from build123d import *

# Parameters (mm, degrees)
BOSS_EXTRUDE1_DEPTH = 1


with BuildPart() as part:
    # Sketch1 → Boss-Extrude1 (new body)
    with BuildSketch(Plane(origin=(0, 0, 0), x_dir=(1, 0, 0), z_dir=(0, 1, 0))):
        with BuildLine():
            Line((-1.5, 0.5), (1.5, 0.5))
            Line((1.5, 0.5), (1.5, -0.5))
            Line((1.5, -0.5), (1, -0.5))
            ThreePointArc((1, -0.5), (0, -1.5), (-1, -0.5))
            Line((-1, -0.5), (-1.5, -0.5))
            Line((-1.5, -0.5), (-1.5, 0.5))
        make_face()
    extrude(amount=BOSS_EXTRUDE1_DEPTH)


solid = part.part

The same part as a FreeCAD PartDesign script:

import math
import FreeCAD as App
import Part
import Sketcher

doc = App.newDocument("Part")
params = doc.addObject("Spreadsheet::Sheet", "Params")
for row, (alias, value) in enumerate([
    ("sketch1_radius", "1 mm"),
    ("sketch1_width", "3 mm"),
    ("sketch1_height", "1 mm"),
    ("pad1_length", "1 mm"),
], start=1):
    params.set(f"A{row}", alias)
    params.set(f"B{row}", "=" + value)
    params.setAlias(f"B{row}", alias)

body = doc.addObject("PartDesign::Body", "Body")

# Sketch on XZ plane
sketch1 = doc.addObject("Sketcher::SketchObject", "Sketch")
body.addObject(sketch1)
sketch1.AttachmentSupport = (doc.XZ_Plane, [""])
sketch1.MapMode = "FlatFace"
sketch1.addGeometry([
    Part.LineSegment(App.Vector(1.5, -0.5, 0), App.Vector(-1.5, -0.5, 0)),  # 0
    Part.LineSegment(App.Vector(-1.5, -0.5, 0), App.Vector(-1.5, 0.5, 0)),  # 1
    Part.LineSegment(App.Vector(-1.5, 0.5, 0), App.Vector(-1, 0.5, 0)),  # 2
    Part.ArcOfCircle(Part.Circle(App.Vector(0, 0.5, 0), App.Vector(0, 0, 1), 1), math.radians(0), math.radians(180)),  # 3
    Part.LineSegment(App.Vector(1, 0.5, 0), App.Vector(1.5, 0.5, 0)),  # 4
    Part.LineSegment(App.Vector(1.5, 0.5, 0), App.Vector(1.5, -0.5, 0)),  # 5
], False)
sketch1.addConstraint([
    Sketcher.Constraint("Coincident", 0, 2, 1, 1),
    Sketcher.Constraint("Coincident", 1, 2, 2, 1),
    Sketcher.Constraint("Coincident", 2, 2, 3, 2),
    Sketcher.Constraint("Coincident", 3, 1, 4, 1),
    Sketcher.Constraint("Coincident", 4, 2, 5, 1),
    Sketcher.Constraint("Coincident", 5, 2, 0, 1),
    Sketcher.Constraint("Horizontal", 0),
    Sketcher.Constraint("Vertical", 1),
    Sketcher.Constraint("Horizontal", 2),
    Sketcher.Constraint("Horizontal", 4),
    Sketcher.Constraint("Vertical", 5),
    Sketcher.Constraint("Symmetric", 0, 2, 4, 2, -1, 1),
    Sketcher.Constraint("Symmetric", 2, 2, 3, 1, -2),
    Sketcher.Constraint("Horizontal", 3, 3, 1, 2),
    Sketcher.Constraint("Radius", 3, 1.0),
    Sketcher.Constraint("DistanceX", 0, 2, 0, 1, 3.0),
    Sketcher.Constraint("DistanceY", 1, 1, 1, 2, 1.0),
])
sketch1.setExpression("Constraints[14]", "Params.sketch1_radius")
sketch1.setExpression("Constraints[15]", "Params.sketch1_width")
sketch1.setExpression("Constraints[16]", "Params.sketch1_height")
pad1 = doc.addObject("PartDesign::Pad", "Pad")
body.addObject(pad1)
pad1.Profile = sketch1
pad1.setExpression("Length", "Params.pad1_length")
pad1.Reversed = True

doc.recompute()
